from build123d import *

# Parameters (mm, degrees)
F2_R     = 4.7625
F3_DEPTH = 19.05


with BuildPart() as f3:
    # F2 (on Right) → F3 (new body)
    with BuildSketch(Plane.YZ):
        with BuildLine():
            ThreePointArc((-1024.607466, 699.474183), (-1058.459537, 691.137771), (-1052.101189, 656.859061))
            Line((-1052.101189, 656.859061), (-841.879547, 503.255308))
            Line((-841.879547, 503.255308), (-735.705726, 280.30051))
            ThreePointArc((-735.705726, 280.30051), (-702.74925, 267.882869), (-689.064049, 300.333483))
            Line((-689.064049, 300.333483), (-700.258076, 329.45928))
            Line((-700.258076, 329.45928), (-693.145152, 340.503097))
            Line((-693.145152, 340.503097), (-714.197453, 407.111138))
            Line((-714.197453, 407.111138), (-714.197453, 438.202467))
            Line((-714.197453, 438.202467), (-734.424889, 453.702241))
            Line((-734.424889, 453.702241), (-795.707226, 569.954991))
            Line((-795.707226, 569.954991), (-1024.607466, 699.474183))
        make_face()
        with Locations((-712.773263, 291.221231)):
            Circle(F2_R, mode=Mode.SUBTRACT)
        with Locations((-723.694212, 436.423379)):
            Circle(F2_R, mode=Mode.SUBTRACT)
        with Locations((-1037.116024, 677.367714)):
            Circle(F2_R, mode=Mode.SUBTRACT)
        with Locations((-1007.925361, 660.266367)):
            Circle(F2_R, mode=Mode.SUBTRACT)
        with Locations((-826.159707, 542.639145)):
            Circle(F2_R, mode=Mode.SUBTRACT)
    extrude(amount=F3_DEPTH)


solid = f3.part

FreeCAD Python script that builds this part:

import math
import FreeCAD as App
import Part
import Sketcher

V = App.Vector
Q = App.Units.Quantity

doc = App.newDocument("Part")
params = doc.addObject("Spreadsheet::Sheet", "Params")
for row, (alias, value) in enumerate([
    ("sketch1_radius", "1 in"),
    ("sketch1_diameter", "0.375 in"),
    ("pad1_length", "0.75 in"),
], start=1):
    params.set(f"A{row}", alias)
    params.set(f"B{row}", "=" + value)
    params.setAlias(f"B{row}", alias)

body = doc.addObject("PartDesign::Body", "Body")

sketch1 = doc.addObject("Sketcher::SketchObject", "Sketch")
body.addObject(sketch1)
sketch1.AttachmentSupport = (doc.YZ_Plane, [""])
sketch1.MapMode = "FlatFace"
sketch1.addGeometry([
    Part.ArcOfCircle(Part.Circle(V(-1037.1, 677.4, 0), V(0, 0, 1), 25.4), math.radians(60), math.radians(234)),
    Part.LineSegment(V(-1052.1, 656.9, 0), V(-841.9, 503.3, 0)),
    Part.LineSegment(V(-841.9, 503.3, 0), V(-735.7, 280.3, 0)),
    Part.ArcOfCircle(Part.Circle(V(-712.8, 291.2, 0), V(0, 0, 1), 25.4), math.radians(-155), math.radians(21)),
    Part.LineSegment(V(-689.1, 300.3, 0), V(-700.3, 329.5, 0)),
    Part.LineSegment(V(-700.3, 329.5, 0), V(-693.1, 340.5, 0)),
    Part.LineSegment(V(-693.1, 340.5, 0), V(-714.2, 407.1, 0)),
    Part.LineSegment(V(-714.2, 407.1, 0), V(-714.2, 438.2, 0)),
    Part.LineSegment(V(-714.2, 438.2, 0), V(-734.4, 453.7, 0)),
    Part.LineSegment(V(-734.4, 453.7, 0), V(-795.7, 570, 0)),
    Part.LineSegment(V(-795.7, 570, 0), V(-1024.6, 699.5, 0)),
    Part.Circle(V(-712.8, 291.2, 0), V(0, 0, 1), 4.8),
    Part.Circle(V(-723.7, 436.4, 0), V(0, 0, 1), 4.8),
    Part.Circle(V(-1037.1, 677.4, 0), V(0, 0, 1), 4.8),
    Part.Circle(V(-1007.9, 660.3, 0), V(0, 0, 1), 4.8),
    Part.Circle(V(-826.2, 542.6, 0), V(0, 0, 1), 4.8),
], False)
sketch1.addConstraint([
    Sketcher.Constraint("Tangent", 0, 2, 1, 1),
    Sketcher.Constraint("Coincident", 1, 2, 2, 1),
    Sketcher.Constraint("Tangent", 2, 2, 3, 1),
    Sketcher.Constraint("Tangent", 3, 2, 4, 1),
    Sketcher.Constraint("Coincident", 4, 2, 5, 1),
    Sketcher.Constraint("Coincident", 5, 2, 6, 1),
    Sketcher.Constraint("Coincident", 6, 2, 7, 1),
    Sketcher.Constraint("Coincident", 7, 2, 8, 1),
    Sketcher.Constraint("Coincident", 8, 2, 9, 1),
    Sketcher.Constraint("Coincident", 9, 2, 10, 1),
    Sketcher.Constraint("Tangent", 10, 2, 0, 1),
    Sketcher.Constraint("Vertical", 7),
    Sketcher.Constraint("Coincident", 11, 3, 3, 3),
    Sketcher.Constraint("Coincident", 13, 3, 0, 3),
    Sketcher.Constraint("Equal", 0, 3),
    Sketcher.Constraint("Equal", 11, 12),
    Sketcher.Constraint("Equal", 12, 13),
    Sketcher.Constraint("Equal", 13, 14),
    Sketcher.Constraint("Equal", 14, 15),
    Sketcher.Constraint("Radius", 0, Q("1 in")),
    Sketcher.Constraint("Diameter", 11, Q("0.375 in")),
    Sketcher.Constraint("DistanceX", 0, 3, 3, 3, Q("12.7694 in")),
    Sketcher.Constraint("DistanceY", 7, 1, 7, 2, 31.091329),
    Sketcher.Constraint("DistanceY", 2, 2, 1, 2, 222.954798),
    Sketcher.Constraint("DistanceY", 4, 2, 12, 3, 106.964099),
    Sketcher.Constraint("DistanceX", 6, 2, 5, 2, 21.052301),
    Sketcher.Constraint("Distance", 1, 260.35985),
    Sketcher.Constraint("Distance", 10, 263.00293),
    Sketcher.Constraint("DistanceY", -1, 1, 3, 3, 291.221231),
    Sketcher.Constraint("DistanceX", 12, 3, -1, 1, 723.694212),
    Sketcher.Constraint("DistanceY", -1, 1, 12, 3, 436.423379),
    Sketcher.Constraint("DistanceX", 14, 3, -1, 1, 1007.925361),
    Sketcher.Constraint("DistanceX", 0, 2, -1, 1, 1052.101189),
    Sketcher.Constraint("DistanceY", -1, 1, 0, 2, 656.859061),
    Sketcher.Constraint("DistanceX", 3, 2, -1, 1, 689.064049),
    Sketcher.Constraint("DistanceY", -1, 1, 6, 2, 407.111138),
    Sketcher.Constraint("DistanceX", 8, 2, -1, 1, 734.424889),
    Sketcher.Constraint("DistanceY", -1, 1, 8, 2, 453.702241),
    Sketcher.Constraint("DistanceY", -1, 1, 9, 2, 569.954991),
    Sketcher.Constraint("DistanceY", 15, 3, 14, 3, 117.627222),
    Sketcher.Constraint("DistanceY", 15, 3, 13, 3, 134.728569),
    Sketcher.Constraint("DistanceX", 1, 2, 15, 3, 15.71984),
    Sketcher.Constraint("DistanceX", 11, 3, 5, 2, 19.628111),
    Sketcher.Constraint("DistanceY", 5, 2, 6, 2, 66.608041),
])
sketch1.setExpression("Constraints[19]", "Params.sketch1_radius")
sketch1.setExpression("Constraints[20]", "Params.sketch1_diameter")
pad1 = doc.addObject("PartDesign::Pad", "Pad")
body.addObject(pad1)
pad1.Profile = sketch1
pad1.setExpression("Length", "Params.pad1_length")

doc.recompute()
